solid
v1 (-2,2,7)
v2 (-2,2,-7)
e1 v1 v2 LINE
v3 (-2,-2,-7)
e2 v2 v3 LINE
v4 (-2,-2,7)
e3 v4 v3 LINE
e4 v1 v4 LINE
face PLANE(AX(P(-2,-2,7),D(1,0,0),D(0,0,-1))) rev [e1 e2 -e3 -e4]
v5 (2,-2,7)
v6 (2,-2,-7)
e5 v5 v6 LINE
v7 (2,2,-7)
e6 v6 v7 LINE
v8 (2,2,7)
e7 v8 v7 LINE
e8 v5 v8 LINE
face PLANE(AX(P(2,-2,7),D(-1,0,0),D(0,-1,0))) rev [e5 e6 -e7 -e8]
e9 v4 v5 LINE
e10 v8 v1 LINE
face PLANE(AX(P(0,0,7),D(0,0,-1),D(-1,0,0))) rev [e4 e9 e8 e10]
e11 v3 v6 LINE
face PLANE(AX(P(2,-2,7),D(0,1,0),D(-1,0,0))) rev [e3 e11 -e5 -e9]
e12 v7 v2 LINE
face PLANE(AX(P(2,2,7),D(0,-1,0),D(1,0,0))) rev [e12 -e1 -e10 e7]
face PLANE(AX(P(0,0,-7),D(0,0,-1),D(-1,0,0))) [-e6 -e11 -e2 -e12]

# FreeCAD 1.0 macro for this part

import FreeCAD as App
import Part
import Sketcher

V = App.Vector
Q = App.Units.Quantity

doc = App.newDocument("Part")
body = doc.addObject("PartDesign::Body", "Body")

sketch1 = doc.addObject("Sketcher::SketchObject", "Sketch")
body.addObject(sketch1)
sketch1.AttachmentSupport = (doc.XY_Plane, [""])
sketch1.MapMode = "FlatFace"
sketch1.addGeometry([
    Part.LineSegment(V(-2, 2, 0), V(-2, -2, 0)),
    Part.LineSegment(V(-2, -2, 0), V(2, -2, 0)),
    Part.LineSegment(V(2, -2, 0), V(2, 2, 0)),
    Part.LineSegment(V(2, 2, 0), V(-2, 2, 0)),
], False)
sketch1.addConstraint([
    Sketcher.Constraint("Coincident", 0, 2, 1, 1),
    Sketcher.Constraint("Coincident", 1, 2, 2, 1),
    Sketcher.Constraint("Coincident", 2, 2, 3, 1),
    Sketcher.Constraint("Coincident", 3, 2, 0, 1),
    Sketcher.Constraint("Vertical", 0),
    Sketcher.Constraint("Horizontal", 1),
    Sketcher.Constraint("Vertical", 2),
    Sketcher.Constraint("Horizontal", 3),
    Sketcher.Constraint("Symmetric", 0, 2, 2, 2, -1, 1),
    Sketcher.Constraint("Equal", 3, 0),
    Sketcher.Constraint("DistanceX", 1, 1, 1, 2, Q("4 mm")),
])
pad1 = doc.addObject("PartDesign::Pad", "Pad")
body.addObject(pad1)
pad1.Profile = sketch1
pad1.Type = "TwoLengths"
pad1.Length = 7
pad1.Length2 = 7

doc.recompute()
